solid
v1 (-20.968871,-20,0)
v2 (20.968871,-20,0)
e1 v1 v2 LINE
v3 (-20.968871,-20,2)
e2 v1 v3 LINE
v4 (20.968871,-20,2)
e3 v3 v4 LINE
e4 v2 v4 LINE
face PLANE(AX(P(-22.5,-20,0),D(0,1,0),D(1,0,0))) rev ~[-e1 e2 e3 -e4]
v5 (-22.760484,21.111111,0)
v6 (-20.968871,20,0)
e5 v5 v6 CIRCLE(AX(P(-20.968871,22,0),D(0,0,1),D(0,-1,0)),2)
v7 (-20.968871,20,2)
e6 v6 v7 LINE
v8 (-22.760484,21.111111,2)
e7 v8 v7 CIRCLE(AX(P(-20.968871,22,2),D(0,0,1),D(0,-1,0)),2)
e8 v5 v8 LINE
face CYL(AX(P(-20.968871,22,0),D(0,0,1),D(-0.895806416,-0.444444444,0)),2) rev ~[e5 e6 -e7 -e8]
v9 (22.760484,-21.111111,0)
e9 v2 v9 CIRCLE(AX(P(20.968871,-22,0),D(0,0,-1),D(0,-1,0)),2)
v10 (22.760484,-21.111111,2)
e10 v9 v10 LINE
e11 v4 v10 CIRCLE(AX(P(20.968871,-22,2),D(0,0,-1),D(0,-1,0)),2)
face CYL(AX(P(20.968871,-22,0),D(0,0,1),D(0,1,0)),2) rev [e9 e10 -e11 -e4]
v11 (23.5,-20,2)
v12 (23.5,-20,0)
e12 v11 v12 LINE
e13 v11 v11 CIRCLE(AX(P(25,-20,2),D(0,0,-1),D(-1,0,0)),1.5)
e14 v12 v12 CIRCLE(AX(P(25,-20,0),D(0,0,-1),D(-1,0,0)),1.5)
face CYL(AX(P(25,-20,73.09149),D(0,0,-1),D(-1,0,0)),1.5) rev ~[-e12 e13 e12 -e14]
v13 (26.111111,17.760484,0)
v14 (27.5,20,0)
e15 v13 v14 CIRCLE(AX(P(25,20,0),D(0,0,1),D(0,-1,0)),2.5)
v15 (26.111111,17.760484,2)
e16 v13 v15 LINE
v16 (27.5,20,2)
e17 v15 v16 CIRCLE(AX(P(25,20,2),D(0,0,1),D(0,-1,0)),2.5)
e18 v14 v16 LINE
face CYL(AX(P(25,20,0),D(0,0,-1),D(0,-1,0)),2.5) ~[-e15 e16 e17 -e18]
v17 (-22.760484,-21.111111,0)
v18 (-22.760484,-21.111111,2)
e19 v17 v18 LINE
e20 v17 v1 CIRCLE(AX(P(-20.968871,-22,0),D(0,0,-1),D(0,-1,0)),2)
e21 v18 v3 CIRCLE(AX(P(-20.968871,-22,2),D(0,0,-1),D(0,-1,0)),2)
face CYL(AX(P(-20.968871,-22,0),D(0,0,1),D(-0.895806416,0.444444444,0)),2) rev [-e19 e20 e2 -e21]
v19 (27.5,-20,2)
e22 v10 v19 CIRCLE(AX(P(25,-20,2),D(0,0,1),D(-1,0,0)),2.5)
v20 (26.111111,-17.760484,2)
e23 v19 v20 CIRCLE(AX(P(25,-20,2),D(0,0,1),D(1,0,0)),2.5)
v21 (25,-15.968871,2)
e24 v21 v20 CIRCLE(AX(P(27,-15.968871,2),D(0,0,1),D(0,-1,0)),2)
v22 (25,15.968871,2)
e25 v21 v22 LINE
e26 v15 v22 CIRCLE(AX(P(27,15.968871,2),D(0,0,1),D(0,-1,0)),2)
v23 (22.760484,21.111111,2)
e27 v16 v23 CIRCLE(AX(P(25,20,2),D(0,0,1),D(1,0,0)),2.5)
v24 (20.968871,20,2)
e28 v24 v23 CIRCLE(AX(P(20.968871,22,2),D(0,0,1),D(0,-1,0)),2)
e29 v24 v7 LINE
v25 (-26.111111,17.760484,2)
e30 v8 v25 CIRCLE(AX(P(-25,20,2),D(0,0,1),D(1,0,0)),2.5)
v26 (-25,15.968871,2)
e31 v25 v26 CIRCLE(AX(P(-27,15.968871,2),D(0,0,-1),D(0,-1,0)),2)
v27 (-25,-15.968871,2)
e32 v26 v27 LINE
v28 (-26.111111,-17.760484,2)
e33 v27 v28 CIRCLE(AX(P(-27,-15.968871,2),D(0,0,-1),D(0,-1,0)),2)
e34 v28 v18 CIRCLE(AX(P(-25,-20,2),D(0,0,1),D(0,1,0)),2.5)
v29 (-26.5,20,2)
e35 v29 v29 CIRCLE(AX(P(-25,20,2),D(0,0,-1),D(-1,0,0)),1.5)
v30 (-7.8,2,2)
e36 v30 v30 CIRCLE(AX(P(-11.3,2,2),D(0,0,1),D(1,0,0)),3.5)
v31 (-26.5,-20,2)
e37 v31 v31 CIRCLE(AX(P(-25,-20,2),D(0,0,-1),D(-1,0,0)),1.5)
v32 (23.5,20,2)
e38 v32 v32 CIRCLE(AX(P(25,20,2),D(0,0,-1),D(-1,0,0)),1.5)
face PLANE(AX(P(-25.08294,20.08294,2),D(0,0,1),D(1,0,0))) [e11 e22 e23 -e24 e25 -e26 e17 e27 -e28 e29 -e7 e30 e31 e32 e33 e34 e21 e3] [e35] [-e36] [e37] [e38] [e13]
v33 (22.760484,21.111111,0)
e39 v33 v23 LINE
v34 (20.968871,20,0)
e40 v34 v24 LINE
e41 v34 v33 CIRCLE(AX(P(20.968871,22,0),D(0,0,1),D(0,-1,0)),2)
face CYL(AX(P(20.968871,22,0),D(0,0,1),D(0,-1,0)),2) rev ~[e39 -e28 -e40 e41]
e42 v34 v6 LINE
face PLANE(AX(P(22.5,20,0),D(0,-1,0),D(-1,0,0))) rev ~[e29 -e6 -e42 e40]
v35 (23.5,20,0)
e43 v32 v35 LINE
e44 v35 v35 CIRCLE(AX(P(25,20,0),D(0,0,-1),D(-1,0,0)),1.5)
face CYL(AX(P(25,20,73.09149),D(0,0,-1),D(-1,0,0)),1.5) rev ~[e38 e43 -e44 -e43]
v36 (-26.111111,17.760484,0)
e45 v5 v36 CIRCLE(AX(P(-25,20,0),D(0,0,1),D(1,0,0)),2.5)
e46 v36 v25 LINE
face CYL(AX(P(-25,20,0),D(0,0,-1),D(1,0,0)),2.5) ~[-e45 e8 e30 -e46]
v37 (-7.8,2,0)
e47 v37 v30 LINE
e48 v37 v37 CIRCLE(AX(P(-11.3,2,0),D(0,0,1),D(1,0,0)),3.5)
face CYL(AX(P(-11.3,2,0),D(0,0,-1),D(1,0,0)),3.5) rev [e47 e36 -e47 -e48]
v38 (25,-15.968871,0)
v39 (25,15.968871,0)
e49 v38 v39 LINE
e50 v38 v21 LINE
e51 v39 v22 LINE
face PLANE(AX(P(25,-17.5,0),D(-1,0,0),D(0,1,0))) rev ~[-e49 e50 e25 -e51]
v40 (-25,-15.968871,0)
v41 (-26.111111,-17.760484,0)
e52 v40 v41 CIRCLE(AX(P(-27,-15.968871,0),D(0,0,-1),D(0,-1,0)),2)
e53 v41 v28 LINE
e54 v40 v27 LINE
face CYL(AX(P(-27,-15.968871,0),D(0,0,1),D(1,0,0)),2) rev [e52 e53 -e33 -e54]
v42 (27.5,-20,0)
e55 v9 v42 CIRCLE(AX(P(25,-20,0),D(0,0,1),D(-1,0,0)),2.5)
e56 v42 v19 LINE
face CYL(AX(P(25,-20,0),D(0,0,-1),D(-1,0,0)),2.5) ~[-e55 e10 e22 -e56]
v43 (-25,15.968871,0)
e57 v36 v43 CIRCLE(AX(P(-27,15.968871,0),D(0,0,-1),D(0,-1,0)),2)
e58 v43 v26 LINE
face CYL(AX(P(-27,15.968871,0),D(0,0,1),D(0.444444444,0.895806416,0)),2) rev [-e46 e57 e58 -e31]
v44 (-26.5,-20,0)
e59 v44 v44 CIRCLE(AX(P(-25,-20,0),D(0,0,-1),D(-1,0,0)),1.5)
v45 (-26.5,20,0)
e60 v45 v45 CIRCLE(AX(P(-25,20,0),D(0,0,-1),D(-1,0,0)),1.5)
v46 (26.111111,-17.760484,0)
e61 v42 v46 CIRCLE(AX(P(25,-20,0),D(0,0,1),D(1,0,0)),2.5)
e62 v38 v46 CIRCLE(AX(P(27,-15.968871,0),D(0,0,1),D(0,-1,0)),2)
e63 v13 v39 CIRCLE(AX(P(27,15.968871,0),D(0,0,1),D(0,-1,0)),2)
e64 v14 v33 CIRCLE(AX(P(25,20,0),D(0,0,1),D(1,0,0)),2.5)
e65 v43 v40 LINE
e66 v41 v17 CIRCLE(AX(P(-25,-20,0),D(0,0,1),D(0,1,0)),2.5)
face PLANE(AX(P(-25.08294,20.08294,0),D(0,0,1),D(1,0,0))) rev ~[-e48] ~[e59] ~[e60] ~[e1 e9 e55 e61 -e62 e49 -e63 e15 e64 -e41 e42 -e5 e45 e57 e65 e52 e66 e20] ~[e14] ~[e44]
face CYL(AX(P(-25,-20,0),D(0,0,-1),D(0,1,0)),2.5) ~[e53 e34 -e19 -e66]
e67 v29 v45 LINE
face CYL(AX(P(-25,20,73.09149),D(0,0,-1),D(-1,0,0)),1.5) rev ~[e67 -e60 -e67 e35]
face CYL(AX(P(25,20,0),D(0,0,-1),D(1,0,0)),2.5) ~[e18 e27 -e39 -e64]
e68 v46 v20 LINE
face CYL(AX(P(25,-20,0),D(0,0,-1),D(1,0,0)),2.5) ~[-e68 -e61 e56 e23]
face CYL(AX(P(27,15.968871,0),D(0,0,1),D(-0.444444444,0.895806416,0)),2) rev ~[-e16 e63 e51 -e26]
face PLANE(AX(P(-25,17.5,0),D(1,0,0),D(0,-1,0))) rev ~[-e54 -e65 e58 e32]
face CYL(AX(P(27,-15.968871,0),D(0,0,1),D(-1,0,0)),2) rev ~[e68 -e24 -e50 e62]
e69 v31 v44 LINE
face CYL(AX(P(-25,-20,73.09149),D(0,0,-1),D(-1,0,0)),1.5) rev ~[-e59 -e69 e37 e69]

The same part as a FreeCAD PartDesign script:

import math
import FreeCAD as App
import Part
import Sketcher
Q = App.Units.Quantity


def edges_at(feature, points):
    """Names of the edges that pass closest to the given points."""
    edges = feature.Shape.Edges
    near = lambda p: min(range(len(edges)), key=lambda i: edges[i].distToShape(Part.Vertex(*p))[0])
    return sorted({f"Edge{near(p) + 1}" for p in points})

doc = App.newDocument("Part")
params = doc.addObject("Spreadsheet::Sheet", "Params")
for row, (alias, value) in enumerate([
    ("sketch1_diameter", "7 mm"),
    ("sketch1_radius", "2.5 mm"),
    ("sketch1_width", "45 mm"),
    ("sketch1_height", "35 mm"),
    ("pad1_length", "2 mm"),
    ("sketch2_diameter", "3 mm"),
    ("hole_diameter", "3 mm"),
    ("fillet_radius", "2 mm"),
], start=1):
    params.set(f"A{row}", alias)
    params.set(f"B{row}", "=" + value)
    params.setAlias(f"B{row}", alias)

body = doc.addObject("PartDesign::Body", "Body")

sketch1 = body.newObject("Sketcher::SketchObject", "Sketch")
sketch1.AttachmentSupport = (doc.getObject("XY_Plane"), [""])
sketch1.MapMode = "FlatFace"
sketch1.addGeometry([
    Part.ArcOfCircle(Part.Circle(App.Vector(-25, 20, 0), App.Vector(0, 0, 1), 2.5), math.radians(0), math.radians(270)),
    Part.LineSegment(App.Vector(-25, 17.5, 0), App.Vector(-25, -17.5, 0)),
    Part.ArcOfCircle(Part.Circle(App.Vector(-25, -20, 0), App.Vector(0, 0, 1), 2.5), math.radians(90), math.radians(360)),
    Part.LineSegment(App.Vector(-22.5, -20, 0), App.Vector(22.5, -20, 0)),
    Part.ArcOfCircle(Part.Circle(App.Vector(25, -20, 0), App.Vector(0, 0, 1), 2.5), math.radians(180), math.radians(360)),
    Part.ArcOfCircle(Part.Circle(App.Vector(25, -20, 0), App.Vector(0, 0, 1), 2.5), math.radians(0), math.radians(90)),
    Part.LineSegment(App.Vector(25, -17.5, 0), App.Vector(25, 17.5, 0)),
    Part.ArcOfCircle(Part.Circle(App.Vector(25, 20, 0), App.Vector(0, 0, 1), 2.5), math.radians(-90), math.radians(0)),
    Part.ArcOfCircle(Part.Circle(App.Vector(25, 20, 0), App.Vector(0, 0, 1), 2.5), math.radians(0), math.radians(180)),
    Part.LineSegment(App.Vector(22.5, 20, 0), App.Vector(-22.5, 20, 0)),
    Part.Circle(App.Vector(-11.3, 2, 0), App.Vector(0, 0, 1), 3.5),
], False)
sketch1.addConstraint([
    Sketcher.Constraint("Coincident", 0, 2, 1, 1),
    Sketcher.Constraint("Coincident", 1, 2, 2, 1),
    Sketcher.Constraint("Coincident", 2, 2, 3, 1),
    Sketcher.Constraint("Coincident", 3, 2, 4, 1),
    Sketcher.Constraint("Tangent", 4, 2, 5, 1),
    Sketcher.Constraint("Coincident", 5, 2, 6, 1),
    Sketcher.Constraint("Coincident", 6, 2, 7, 1),
    Sketcher.Constraint("Tangent", 7, 2, 8, 1),
    Sketcher.Constraint("Coincident", 8, 2, 9, 1),
    Sketcher.Constraint("Coincident", 9, 2, 0, 1),
    Sketcher.Constraint("Vertical", 1),
    Sketcher.Constraint("Horizontal", 3),
    Sketcher.Constraint("Vertical", 6),
    Sketcher.Constraint("Horizontal", 9),
    Sketcher.Constraint("Equal", 0, 2),
    Sketcher.Constraint("Equal", 2, 4),
    Sketcher.Constraint("Equal", 4, 5),
    Sketcher.Constraint("Equal", 5, 7),
    Sketcher.Constraint("Equal", 7, 8),
    Sketcher.Constraint("Symmetric", 0, 3, 4, 3, -1, 1),
    Sketcher.Constraint("Symmetric", 2, 3, 7, 3, -1, 1),
    Sketcher.Constraint("Symmetric", 2, 3, 4, 3, -2),
    Sketcher.Constraint("Horizontal", 5, 3, 2, 2),
    Sketcher.Constraint("Horizontal", 3, 2, 4, 2),
    Sketcher.Constraint("Horizontal", 8, 3, 7, 2),
    Sketcher.Constraint("Horizontal", 7, 2, 8, 2),
    Sketcher.Constraint("Vertical", 2, 3, 0, 2),
    Sketcher.Constraint("Vertical", 8, 3, 5, 2),
    Sketcher.Constraint("Diameter", 10, Q("7 mm")),
    Sketcher.Constraint("Radius", 0, Q("2.5 mm")),
    Sketcher.Constraint("DistanceX", 3, 1, 3, 2, Q("45 mm")),
    Sketcher.Constraint("DistanceY", 1, 2, 1, 1, Q("35 mm")),
    Sketcher.Constraint("DistanceY", -1, 1, 10, 3, Q("2 mm")),
    Sketcher.Constraint("DistanceX", 10, 3, -1, 1, Q("11.3 mm")),
])
sketch1.setExpression("Constraints[28]", "Params.sketch1_diameter")
sketch1.setExpression("Constraints[29]", "Params.sketch1_radius")
sketch1.setExpression("Constraints[30]", "Params.sketch1_width")
sketch1.setExpression("Constraints[31]", "Params.sketch1_height")
pad1 = body.newObject("PartDesign::Pad", "Pad")
pad1.Profile = sketch1
pad1.setExpression("Length", "Params.pad1_length")

sketch2 = body.newObject("Sketcher::SketchObject", "Sketch001")
sketch2.AttachmentSupport = (doc.getObject("XY_Plane"), [""])
sketch2.MapMode = "FlatFace"
sketch2.AttachmentOffset = App.Placement(App.Vector(0, 0, 2), App.Rotation())
sketch2.addGeometry([
    Part.Circle(App.Vector(-25, 20, 0), App.Vector(0, 0, 1), 1.5),
    Part.Circle(App.Vector(-25, -20, 0), App.Vector(0, 0, 1), 1.5),
    Part.Circle(App.Vector(25, 20, 0), App.Vector(0, 0, 1), 1.5),
    Part.Circle(App.Vector(25, -20, 0), App.Vector(0, 0, 1), 1.5),
], False)
sketch2.addConstraint([
    Sketcher.Constraint("Equal", 0, 1),
    Sketcher.Constraint("Equal", 1, 2),
    Sketcher.Constraint("Equal", 2, 3),
    Sketcher.Constraint("Symmetric", 1, 3, 2, 3, -1, 1),
    Sketcher.Constraint("Symmetric", 0, 3, 3, 3, -1, 1),
    Sketcher.Constraint("Symmetric", 0, 3, 2, 3, -2),
    Sketcher.Constraint("Diameter", 0, Q("3 mm")),
    Sketcher.Constraint("DistanceX", 0, 3, -1, 1, Q("25 mm")),
    Sketcher.Constraint("DistanceY", -1, 1, 0, 3, Q("20 mm")),
])
sketch2.setExpression("Constraints[6]", "Params.sketch2_diameter")
doc.recompute()
hole = body.newObject("PartDesign::Hole", "Hole")
hole.Profile = sketch2
hole.ThreadType = "None"
hole.setExpression("Diameter", "Params.hole_diameter")
hole.DepthType = "ThroughAll"
doc.recompute()

fillet = body.newObject("PartDesign::Fillet", "Fillet")
fillet.Base = (hole, edges_at(hole, [
    (-25, 17.5, 1),
    (-22.5, 20, 1),
    (22.5, 20, 1),
    (25, 17.5, 1),
    (25, -17.5, 1),
    (22.5, -20, 1),
    (-22.5, -20, 1),
    (-25, -17.5, 1),
]))
fillet.setExpression("Radius", "Params.fillet_radius")

doc.recompute()
